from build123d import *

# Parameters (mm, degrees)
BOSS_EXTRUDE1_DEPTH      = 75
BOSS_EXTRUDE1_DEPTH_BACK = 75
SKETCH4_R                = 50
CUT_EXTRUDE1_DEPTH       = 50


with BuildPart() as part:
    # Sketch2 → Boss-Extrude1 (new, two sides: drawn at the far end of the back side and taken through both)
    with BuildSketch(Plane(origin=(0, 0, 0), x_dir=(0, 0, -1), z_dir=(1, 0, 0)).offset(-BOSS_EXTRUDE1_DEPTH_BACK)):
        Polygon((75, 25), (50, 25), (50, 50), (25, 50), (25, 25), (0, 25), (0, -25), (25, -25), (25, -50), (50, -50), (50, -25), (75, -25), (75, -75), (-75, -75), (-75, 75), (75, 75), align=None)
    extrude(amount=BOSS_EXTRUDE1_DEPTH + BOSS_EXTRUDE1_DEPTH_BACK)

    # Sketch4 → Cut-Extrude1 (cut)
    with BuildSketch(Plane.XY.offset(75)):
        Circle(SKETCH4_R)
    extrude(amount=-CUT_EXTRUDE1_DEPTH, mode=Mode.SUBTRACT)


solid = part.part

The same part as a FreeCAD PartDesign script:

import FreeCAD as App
import Part
import Sketcher
Q = App.Units.Quantity


def add_polygon(sketch, points):
    """Adds a closed chain of lines whose ends are joined by coincident constraints."""
    first, n = sketch.GeometryCount, len(points)
    for a, b in zip(points, points[1:] + points[:1]):
        sketch.addGeometry(Part.LineSegment(App.Vector(*a, 0), App.Vector(*b, 0)), False)
    for i in range(n):
        sketch.addConstraint(Sketcher.Constraint("Coincident", first + i, 2, first + (i + 1) % n, 1))

doc = App.newDocument("Part")
body = doc.addObject("PartDesign::Body", "Body")

sketch1 = body.newObject("Sketcher::SketchObject", "Sketch")
sketch1.AttachmentSupport = (doc.getObject("YZ_Plane"), [""])
sketch1.MapMode = "FlatFace"
add_polygon(sketch1, [(25, -50), (25, -75), (75, -75), (75, 75), (-75, 75), (-75, -75), (-25, -75), (-25, -50), (-50, -50), (-50, -25), (-25, -25), (-25, 0), (25, 0), (25, -25), (50, -25), (50, -50)])
sketch1.addConstraint([
    Sketcher.Constraint("Vertical", 0),
    Sketcher.Constraint("Horizontal", 1),
    Sketcher.Constraint("Vertical", 2),
    Sketcher.Constraint("Horizontal", 3),
    Sketcher.Constraint("Vertical", 4),
    Sketcher.Constraint("Horizontal", 5),
    Sketcher.Constraint("Vertical", 6),
    Sketcher.Constraint("Horizontal", 7),
    Sketcher.Constraint("Vertical", 8),
    Sketcher.Constraint("Horizontal", 9),
    Sketcher.Constraint("Vertical", 10),
    Sketcher.Constraint("Horizontal", 11),
    Sketcher.Constraint("Vertical", 12),
    Sketcher.Constraint("Horizontal", 13),
    Sketcher.Constraint("Vertical", 14),
    Sketcher.Constraint("Horizontal", 15),
    Sketcher.Constraint("Symmetric", 1, 2, 3, 2, -1, 1),
    Sketcher.Constraint("Symmetric", 10, 2, 11, 2, -1, 1),
    Sketcher.Constraint("Symmetric", 0, 2, 5, 2, -2),
    Sketcher.Constraint("Symmetric", 8, 2, 13, 2, -2),
    Sketcher.Constraint("Horizontal", 7, 2, 14, 2),
    Sketcher.Constraint("Vertical", 6, 2, 9, 2),
    Sketcher.Constraint("Equal", 5, 11),
    Sketcher.Constraint("Equal", 15, 0),
    Sketcher.Constraint("Equal", 3, 2),
    Sketcher.Constraint("Equal", 6, 8),
    Sketcher.Constraint("Equal", 8, 10),
    Sketcher.Constraint("DistanceX", 1, 1, 1, 2, Q("50 mm")),
])
pad1 = body.newObject("PartDesign::Pad", "Pad")
pad1.Profile = sketch1
pad1.Type = "TwoLengths"
pad1.Length = 75
pad1.Length2 = 75

sketch2 = body.newObject("Sketcher::SketchObject", "Sketch001")
sketch2.AttachmentSupport = (doc.getObject("XY_Plane"), [""])
sketch2.MapMode = "FlatFace"
sketch2.AttachmentOffset = App.Placement(App.Vector(0, 0, 75), App.Rotation())
sketch2.addGeometry(Part.Circle(App.Vector(0, 0, 0), App.Vector(0, 0, 1), 50), False)
sketch2.addConstraint([
    Sketcher.Constraint("Coincident", 0, 3, -1, 1),
    Sketcher.Constraint("Diameter", 0, Q("100 mm")),
])
pocket1 = body.newObject("PartDesign::Pocket", "Pocket")
pocket1.Profile = sketch2
pocket1.Length = 50

doc.recompute()
